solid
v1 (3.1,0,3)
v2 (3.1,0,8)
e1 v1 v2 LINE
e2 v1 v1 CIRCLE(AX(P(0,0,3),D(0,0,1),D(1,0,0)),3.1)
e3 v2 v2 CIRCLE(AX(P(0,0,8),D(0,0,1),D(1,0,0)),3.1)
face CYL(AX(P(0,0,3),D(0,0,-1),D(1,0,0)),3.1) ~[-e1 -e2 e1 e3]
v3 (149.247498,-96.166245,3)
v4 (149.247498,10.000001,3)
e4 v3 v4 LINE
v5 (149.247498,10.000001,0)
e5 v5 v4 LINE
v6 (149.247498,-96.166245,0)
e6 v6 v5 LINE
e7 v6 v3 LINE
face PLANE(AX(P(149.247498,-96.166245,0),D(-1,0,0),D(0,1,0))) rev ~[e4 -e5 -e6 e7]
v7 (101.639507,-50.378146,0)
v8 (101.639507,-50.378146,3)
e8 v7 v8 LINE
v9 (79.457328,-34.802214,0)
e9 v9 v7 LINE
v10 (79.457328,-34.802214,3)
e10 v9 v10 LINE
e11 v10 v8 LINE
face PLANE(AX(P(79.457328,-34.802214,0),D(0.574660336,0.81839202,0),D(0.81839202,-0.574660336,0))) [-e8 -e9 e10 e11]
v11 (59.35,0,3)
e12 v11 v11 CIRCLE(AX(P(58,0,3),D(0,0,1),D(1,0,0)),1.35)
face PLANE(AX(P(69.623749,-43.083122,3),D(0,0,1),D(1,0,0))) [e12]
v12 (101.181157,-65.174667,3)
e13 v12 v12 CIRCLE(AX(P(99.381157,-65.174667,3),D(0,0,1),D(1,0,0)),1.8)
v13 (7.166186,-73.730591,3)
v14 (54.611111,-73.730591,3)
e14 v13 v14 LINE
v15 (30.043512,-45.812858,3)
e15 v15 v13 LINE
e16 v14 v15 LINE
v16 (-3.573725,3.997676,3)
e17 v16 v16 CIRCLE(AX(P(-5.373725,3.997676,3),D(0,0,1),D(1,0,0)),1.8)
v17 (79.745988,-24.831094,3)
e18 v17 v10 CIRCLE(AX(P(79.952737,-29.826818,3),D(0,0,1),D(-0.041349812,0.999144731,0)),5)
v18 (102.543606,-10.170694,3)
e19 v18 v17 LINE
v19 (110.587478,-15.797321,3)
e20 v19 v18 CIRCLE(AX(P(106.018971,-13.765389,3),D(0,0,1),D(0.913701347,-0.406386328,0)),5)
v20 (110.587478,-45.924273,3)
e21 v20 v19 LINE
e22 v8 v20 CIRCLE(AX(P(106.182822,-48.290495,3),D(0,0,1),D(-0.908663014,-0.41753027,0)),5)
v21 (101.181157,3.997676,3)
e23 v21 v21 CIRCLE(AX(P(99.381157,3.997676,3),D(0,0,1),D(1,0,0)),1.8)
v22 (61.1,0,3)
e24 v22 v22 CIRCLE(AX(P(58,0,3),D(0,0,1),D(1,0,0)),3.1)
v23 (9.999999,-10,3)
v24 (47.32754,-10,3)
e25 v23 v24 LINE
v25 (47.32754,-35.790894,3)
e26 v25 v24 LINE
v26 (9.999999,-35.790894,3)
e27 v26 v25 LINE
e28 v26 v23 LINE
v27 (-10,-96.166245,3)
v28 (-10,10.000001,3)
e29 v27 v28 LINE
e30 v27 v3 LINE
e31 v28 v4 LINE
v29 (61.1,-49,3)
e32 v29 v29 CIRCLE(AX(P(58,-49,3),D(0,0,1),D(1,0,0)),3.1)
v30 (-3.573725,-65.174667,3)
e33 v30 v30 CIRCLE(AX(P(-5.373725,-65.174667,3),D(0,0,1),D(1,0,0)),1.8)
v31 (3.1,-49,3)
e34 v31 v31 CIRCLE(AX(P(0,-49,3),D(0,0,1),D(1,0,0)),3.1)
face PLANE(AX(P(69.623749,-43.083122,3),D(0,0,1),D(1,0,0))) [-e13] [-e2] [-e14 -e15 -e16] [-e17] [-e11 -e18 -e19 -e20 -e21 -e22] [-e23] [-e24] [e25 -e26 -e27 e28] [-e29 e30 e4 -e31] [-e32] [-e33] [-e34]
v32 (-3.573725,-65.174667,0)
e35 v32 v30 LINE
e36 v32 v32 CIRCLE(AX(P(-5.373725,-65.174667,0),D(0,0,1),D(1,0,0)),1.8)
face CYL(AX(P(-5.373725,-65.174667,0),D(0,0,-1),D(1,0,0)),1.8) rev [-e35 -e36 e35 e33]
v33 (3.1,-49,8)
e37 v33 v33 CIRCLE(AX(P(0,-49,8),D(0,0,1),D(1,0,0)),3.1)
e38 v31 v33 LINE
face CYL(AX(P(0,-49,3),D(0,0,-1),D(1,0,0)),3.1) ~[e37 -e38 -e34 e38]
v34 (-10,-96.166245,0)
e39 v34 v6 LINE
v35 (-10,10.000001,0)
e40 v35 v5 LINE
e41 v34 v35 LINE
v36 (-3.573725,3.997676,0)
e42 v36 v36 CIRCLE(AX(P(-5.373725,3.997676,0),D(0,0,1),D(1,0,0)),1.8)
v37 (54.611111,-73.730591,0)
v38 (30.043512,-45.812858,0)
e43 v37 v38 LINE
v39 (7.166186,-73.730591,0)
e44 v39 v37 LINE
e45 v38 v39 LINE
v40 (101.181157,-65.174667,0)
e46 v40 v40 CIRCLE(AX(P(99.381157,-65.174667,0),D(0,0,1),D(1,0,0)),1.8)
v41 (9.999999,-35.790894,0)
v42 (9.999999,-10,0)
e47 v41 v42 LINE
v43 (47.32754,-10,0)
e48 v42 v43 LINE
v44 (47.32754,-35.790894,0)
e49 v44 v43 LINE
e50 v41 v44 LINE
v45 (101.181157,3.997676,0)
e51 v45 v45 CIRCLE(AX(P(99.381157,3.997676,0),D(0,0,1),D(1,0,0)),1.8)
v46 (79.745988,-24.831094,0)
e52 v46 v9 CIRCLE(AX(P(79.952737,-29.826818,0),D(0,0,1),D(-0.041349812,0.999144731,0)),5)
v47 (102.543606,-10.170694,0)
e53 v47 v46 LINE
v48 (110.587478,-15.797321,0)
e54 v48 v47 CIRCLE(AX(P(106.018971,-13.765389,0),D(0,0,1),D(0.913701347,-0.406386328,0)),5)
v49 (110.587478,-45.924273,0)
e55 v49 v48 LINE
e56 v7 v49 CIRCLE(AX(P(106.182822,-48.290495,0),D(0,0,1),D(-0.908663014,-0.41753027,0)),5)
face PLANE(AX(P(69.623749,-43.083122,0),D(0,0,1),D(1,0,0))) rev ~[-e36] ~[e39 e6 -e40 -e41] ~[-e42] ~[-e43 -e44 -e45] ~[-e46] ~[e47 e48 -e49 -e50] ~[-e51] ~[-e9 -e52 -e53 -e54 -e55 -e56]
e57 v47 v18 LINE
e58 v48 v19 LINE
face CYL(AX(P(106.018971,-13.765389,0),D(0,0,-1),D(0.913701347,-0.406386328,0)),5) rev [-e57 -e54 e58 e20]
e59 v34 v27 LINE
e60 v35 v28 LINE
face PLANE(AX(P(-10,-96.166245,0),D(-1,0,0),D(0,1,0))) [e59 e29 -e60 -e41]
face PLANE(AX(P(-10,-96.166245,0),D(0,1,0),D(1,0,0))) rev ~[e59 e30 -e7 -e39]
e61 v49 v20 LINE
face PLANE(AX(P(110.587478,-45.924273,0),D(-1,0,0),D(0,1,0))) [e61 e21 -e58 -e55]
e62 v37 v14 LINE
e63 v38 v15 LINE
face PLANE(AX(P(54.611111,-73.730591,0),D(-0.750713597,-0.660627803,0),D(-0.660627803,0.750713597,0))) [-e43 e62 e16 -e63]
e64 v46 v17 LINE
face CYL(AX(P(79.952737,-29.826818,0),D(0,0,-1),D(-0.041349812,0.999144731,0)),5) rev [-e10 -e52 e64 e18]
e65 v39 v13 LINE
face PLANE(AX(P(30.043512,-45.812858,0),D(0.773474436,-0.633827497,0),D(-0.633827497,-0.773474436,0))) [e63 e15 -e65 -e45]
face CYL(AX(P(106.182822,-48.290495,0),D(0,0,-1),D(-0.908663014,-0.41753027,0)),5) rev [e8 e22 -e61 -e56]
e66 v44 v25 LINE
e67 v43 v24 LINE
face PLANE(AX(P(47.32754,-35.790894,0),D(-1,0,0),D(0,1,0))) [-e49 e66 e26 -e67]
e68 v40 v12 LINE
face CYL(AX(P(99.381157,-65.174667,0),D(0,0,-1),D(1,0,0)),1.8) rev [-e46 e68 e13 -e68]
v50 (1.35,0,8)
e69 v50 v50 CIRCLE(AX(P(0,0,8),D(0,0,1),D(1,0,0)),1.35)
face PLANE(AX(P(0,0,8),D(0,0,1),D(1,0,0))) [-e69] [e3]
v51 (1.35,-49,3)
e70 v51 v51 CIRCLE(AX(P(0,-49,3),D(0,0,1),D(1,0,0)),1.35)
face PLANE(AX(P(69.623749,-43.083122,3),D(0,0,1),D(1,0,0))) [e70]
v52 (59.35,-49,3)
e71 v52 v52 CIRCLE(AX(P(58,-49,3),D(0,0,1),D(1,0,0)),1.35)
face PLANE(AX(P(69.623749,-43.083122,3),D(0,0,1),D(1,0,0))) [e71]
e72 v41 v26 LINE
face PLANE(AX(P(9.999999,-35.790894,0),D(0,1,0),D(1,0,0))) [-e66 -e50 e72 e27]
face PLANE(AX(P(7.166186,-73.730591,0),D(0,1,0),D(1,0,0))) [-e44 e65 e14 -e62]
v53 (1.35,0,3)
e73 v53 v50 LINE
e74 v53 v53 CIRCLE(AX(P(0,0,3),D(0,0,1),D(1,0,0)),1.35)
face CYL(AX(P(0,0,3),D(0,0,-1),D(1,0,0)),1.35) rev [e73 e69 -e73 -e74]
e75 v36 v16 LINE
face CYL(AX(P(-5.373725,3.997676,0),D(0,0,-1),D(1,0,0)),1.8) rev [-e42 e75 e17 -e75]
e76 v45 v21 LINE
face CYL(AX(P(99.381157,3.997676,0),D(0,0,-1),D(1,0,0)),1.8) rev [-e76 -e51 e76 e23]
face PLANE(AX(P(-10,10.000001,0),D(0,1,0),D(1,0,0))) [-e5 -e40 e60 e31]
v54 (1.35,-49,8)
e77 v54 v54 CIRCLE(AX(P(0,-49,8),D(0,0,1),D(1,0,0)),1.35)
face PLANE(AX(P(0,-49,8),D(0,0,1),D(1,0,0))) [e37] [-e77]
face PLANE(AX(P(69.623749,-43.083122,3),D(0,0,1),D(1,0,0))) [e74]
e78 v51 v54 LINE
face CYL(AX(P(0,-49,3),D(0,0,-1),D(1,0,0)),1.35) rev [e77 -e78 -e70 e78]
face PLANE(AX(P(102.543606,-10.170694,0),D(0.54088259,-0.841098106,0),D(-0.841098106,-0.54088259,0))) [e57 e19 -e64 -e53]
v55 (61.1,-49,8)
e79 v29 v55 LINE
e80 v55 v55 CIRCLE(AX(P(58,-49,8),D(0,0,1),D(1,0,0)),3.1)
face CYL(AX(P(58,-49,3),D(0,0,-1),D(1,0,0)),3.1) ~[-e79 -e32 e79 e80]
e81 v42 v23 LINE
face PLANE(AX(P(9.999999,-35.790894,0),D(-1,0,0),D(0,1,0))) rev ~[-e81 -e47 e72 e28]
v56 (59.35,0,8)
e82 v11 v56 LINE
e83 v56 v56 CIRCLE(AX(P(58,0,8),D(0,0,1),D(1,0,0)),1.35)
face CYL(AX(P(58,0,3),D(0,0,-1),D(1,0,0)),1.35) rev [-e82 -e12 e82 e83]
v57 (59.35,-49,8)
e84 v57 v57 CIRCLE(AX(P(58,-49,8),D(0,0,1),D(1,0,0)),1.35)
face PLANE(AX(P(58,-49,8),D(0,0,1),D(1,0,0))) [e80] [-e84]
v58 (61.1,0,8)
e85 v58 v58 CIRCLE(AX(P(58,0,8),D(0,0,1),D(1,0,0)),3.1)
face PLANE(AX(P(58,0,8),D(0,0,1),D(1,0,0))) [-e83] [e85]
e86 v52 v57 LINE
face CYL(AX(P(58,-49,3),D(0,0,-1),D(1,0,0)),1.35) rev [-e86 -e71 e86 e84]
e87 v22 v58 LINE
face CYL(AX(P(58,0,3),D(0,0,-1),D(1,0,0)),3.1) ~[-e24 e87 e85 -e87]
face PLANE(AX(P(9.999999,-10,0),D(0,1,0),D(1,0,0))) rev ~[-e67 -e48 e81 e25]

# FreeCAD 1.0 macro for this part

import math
import FreeCAD as App
import Part
import Sketcher
from FreeCAD import Vector

doc = App.newDocument("Part")
body = doc.addObject("PartDesign::Body", "Body")

# Sketch on XY plane
sketch1 = doc.addObject("Sketcher::SketchObject", "Sketch")
body.addObject(sketch1)
sketch1.AttachmentSupport = (doc.XY_Plane, [""])
sketch1.MapMode = "FlatFace"
sketch1.addGeometry([
    Part.LineSegment(Vector(-10, 10, 0), Vector(-10, -96.2, 0)),  # 0
    Part.LineSegment(Vector(-10, -96.2, 0), Vector(149.2, -96.2, 0)),  # 1
    Part.LineSegment(Vector(149.2, -96.2, 0), Vector(149.2, 10, 0)),  # 2
    Part.LineSegment(Vector(149.2, 10, 0), Vector(-10, 10, 0)),  # 3
    Part.Circle(Vector(-5.4, -65.2, 0), Vector(0, 0, 1), 1.8),  # 4
    Part.LineSegment(Vector(7.2, -73.7, 0), Vector(30, -45.8, 0)),  # 5
    Part.LineSegment(Vector(30, -45.8, 0), Vector(54.6, -73.7, 0)),  # 6
    Part.LineSegment(Vector(54.6, -73.7, 0), Vector(7.2, -73.7, 0)),  # 7
    Part.Circle(Vector(99.4, -65.2, 0), Vector(0, 0, 1), 1.8),  # 8
    Part.LineSegment(Vector(47.3, -35.8, 0), Vector(10, -35.8, 0)),  # 9
    Part.LineSegment(Vector(10, -35.8, 0), Vector(10, -10, 0)),  # 10
    Part.LineSegment(Vector(10, -10, 0), Vector(47.3, -10, 0)),  # 11
    Part.LineSegment(Vector(47.3, -10, 0), Vector(47.3, -35.8, 0)),  # 12
    Part.Circle(Vector(-5.4, 4, 0), Vector(0, 0, 1), 1.8),  # 13
    Part.LineSegment(Vector(79.7, -24.8, 0), Vector(102.5, -10.2, 0)),  # 14
    Part.ArcOfCircle(Part.Circle(Vector(106, -13.8, 0), Vector(0, 0, 1), 5), math.radians(-24), math.radians(134)),  # 15
    Part.LineSegment(Vector(110.6, -15.8, 0), Vector(110.6, -45.9, 0)),  # 16
    Part.ArcOfCircle(Part.Circle(Vector(106.2, -48.3, 0), Vector(0, 0, 1), 5), math.radians(-155), math.radians(28)),  # 17
    Part.LineSegment(Vector(101.6, -50.4, 0), Vector(79.5, -34.8, 0)),  # 18
    Part.ArcOfCircle(Part.Circle(Vector(80, -29.8, 0), Vector(0, 0, 1), 5), math.radians(92), math.radians(264)),  # 19
    Part.Circle(Vector(99.4, 4, 0), Vector(0, 0, 1), 1.8),  # 20
], False)
sketch1.addConstraint([
    Sketcher.Constraint("Coincident", 0, 2, 1, 1),
    Sketcher.Constraint("Coincident", 1, 2, 2, 1),
    Sketcher.Constraint("Coincident", 2, 2, 3, 1),
    Sketcher.Constraint("Coincident", 3, 2, 0, 1),
    Sketcher.Constraint("Coincident", 5, 2, 6, 1),
    Sketcher.Constraint("Coincident", 6, 2, 7, 1),
    Sketcher.Constraint("Coincident", 7, 2, 5, 1),
    Sketcher.Constraint("Coincident", 9, 2, 10, 1),
    Sketcher.Constraint("Coincident", 10, 2, 11, 1),
    Sketcher.Constraint("Coincident", 11, 2, 12, 1),
    Sketcher.Constraint("Coincident", 12, 2, 9, 1),
    Sketcher.Constraint("Coincident", 14, 2, 15, 2),
    Sketcher.Constraint("Coincident", 15, 1, 16, 1),
    Sketcher.Constraint("Coincident", 16, 2, 17, 2),
    Sketcher.Constraint("Coincident", 17, 1, 18, 1),
    Sketcher.Constraint("Coincident", 18, 2, 19, 2),
    Sketcher.Constraint("Coincident", 19, 1, 14, 1),
    Sketcher.Constraint("Vertical", 0),
    Sketcher.Constraint("Horizontal", 1),
    Sketcher.Constraint("Vertical", 2),
    Sketcher.Constraint("Horizontal", 3),
    Sketcher.Constraint("Horizontal", 7),
    Sketcher.Constraint("Horizontal", 9),
    Sketcher.Constraint("Vertical", 10),
    Sketcher.Constraint("Horizontal", 11),
    Sketcher.Constraint("Vertical", 12),
    Sketcher.Constraint("Vertical", 16),
    Sketcher.Constraint("Equal", 4, 8),
    Sketcher.Constraint("Equal", 8, 13),
    Sketcher.Constraint("Equal", 15, 17),
    Sketcher.Constraint("Equal", 17, 19),
    Sketcher.Constraint("Equal", 13, 20),
    Sketcher.Constraint("Symmetric", 3, 2, 10, 2, -1, 1),
    Sketcher.Constraint("Horizontal", 4, 3, 8, 3),
    Sketcher.Constraint("Horizontal", 13, 3, 20, 3),
    Sketcher.Constraint("Vertical", 4, 3, 13, 3),
    Sketcher.Constraint("Vertical", 8, 3, 20, 3),
    Sketcher.Constraint("Equal", 14, 18),
    Sketcher.Constraint("Radius", 15, 5.0),
    Sketcher.Constraint("Diameter", 4, 3.6),
    Sketcher.Constraint("DistanceX", 0, 2, -1, 1, 10.0),
    Sketcher.Constraint("DistanceY", -1, 1, 2, 2, 10.000001),
    Sketcher.Constraint("DistanceX", 1, 1, 1, 2, 159.247498),
    Sketcher.Constraint("DistanceX", 9, 2, 9, 1, 37.327541),
    Sketcher.Constraint("DistanceY", 16, 2, 16, 1, 30.126952),
    Sketcher.Constraint("DistanceX", 5, 2, 6, 2, 24.567599),
    Sketcher.Constraint("DistanceY", 17, 3, 14, 2, 38.119801),
    Sketcher.Constraint("DistanceY", 19, 1, 14, 2, 14.6604),
    Sketcher.Constraint("Distance", 5, 36.093931),
    Sketcher.Constraint("Distance", 6, 37.188261),
    Sketcher.Constraint("Distance", 14, 27.104588),
    Sketcher.Constraint("DistanceY", 0, 2, 0, 1, 106.166245),
    Sketcher.Constraint("DistanceY", 10, 1, 10, 2, 25.790894),
    Sketcher.Constraint("DistanceX", -1, 1, 15, 3, 106.018971),
    Sketcher.Constraint("DistanceY", 15, 3, -1, 1, 13.765389),
    Sketcher.Constraint("DistanceX", -1, 1, 5, 2, 30.043512),
    Sketcher.Constraint("DistanceY", 6, 2, -1, 1, 73.730591),
    Sketcher.Constraint("DistanceY", 15, 1, -1, 1, 15.797321),
    Sketcher.Constraint("DistanceX", -1, 1, 18, 2, 79.457328),
    Sketcher.Constraint("DistanceX", -1, 1, 19, 1, 79.745988),
    Sketcher.Constraint("DistanceY", 17, 3, 13, 3, 52.288171),
    Sketcher.Constraint("DistanceY", 19, 3, 15, 3, 16.061428),
    Sketcher.Constraint("DistanceX", 19, 3, 8, 3, 19.42842),
    Sketcher.Constraint("DistanceY", 8, 3, 19, 3, 35.347849),
    Sketcher.Constraint("DistanceX", 4, 3, 7, 2, 12.539911),
])
pad1 = doc.addObject("PartDesign::Pad", "Pad")
body.addObject(pad1)
pad1.Profile = sketch1
pad1.Length = 3

# Sketch on XY plane
sketch2 = doc.addObject("Sketcher::SketchObject", "Sketch001")
body.addObject(sketch2)
sketch2.AttachmentSupport = (doc.XY_Plane, [""])
sketch2.MapMode = "FlatFace"
sketch2.AttachmentOffset = App.Placement(Vector(0, 0, 3), App.Rotation())
sketch2.addGeometry([
    Part.Circle(Vector(0, 0, 0), Vector(0, 0, 1), 3.1),  # 0
    Part.Circle(Vector(0, 0, 0), Vector(0, 0, 1), 1.4),  # 1
    Part.Circle(Vector(58, 0, 0), Vector(0, 0, 1), 3.1),  # 2
    Part.Circle(Vector(58, 0, 0), Vector(0, 0, 1), 1.4),  # 3
    Part.Circle(Vector(0, -49, 0), Vector(0, 0, 1), 3.1),  # 4
    Part.Circle(Vector(0, -49, 0), Vector(0, 0, 1), 1.4),  # 5
    Part.Circle(Vector(58, -49, 0), Vector(0, 0, 1), 3.1),  # 6
    Part.Circle(Vector(58, -49, 0), Vector(0, 0, 1), 1.4),  # 7
], False)
sketch2.addConstraint([
    Sketcher.Constraint("Coincident", 0, 3, -1, 1),
    Sketcher.Constraint("Coincident", 1, 3, -1, 1),
    Sketcher.Constraint("Coincident", 3, 3, 2, 3),
    Sketcher.Constraint("Coincident", 5, 3, 4, 3),
    Sketcher.Constraint("Coincident", 7, 3, 6, 3),
    Sketcher.Constraint("Equal", 0, 2),
    Sketcher.Constraint("Equal", 1, 3),
    Sketcher.Constraint("Equal", 2, 4),
    Sketcher.Constraint("Equal", 3, 5),
    Sketcher.Constraint("Equal", 4, 6),
    Sketcher.Constraint("Equal", 5, 7),
    Sketcher.Constraint("PointOnObject", 2, 3, -1),
    Sketcher.Constraint("PointOnObject", 4, 3, -2),
    Sketcher.Constraint("Horizontal", 5, 3, 6, 3),
    Sketcher.Constraint("Vertical", 3, 3, 6, 3),
    Sketcher.Constraint("Diameter", 0, 6.2),
    Sketcher.Constraint("Diameter", 1, 2.7),
    Sketcher.Constraint("DistanceX", -1, 1, 2, 3, 58.0),
    Sketcher.Constraint("DistanceY", 4, 3, -1, 1, 49.0),
])
pad2 = doc.addObject("PartDesign::Pad", "Pad001")
body.addObject(pad2)
pad2.Profile = sketch2
pad2.Length = 5

doc.recompute()
